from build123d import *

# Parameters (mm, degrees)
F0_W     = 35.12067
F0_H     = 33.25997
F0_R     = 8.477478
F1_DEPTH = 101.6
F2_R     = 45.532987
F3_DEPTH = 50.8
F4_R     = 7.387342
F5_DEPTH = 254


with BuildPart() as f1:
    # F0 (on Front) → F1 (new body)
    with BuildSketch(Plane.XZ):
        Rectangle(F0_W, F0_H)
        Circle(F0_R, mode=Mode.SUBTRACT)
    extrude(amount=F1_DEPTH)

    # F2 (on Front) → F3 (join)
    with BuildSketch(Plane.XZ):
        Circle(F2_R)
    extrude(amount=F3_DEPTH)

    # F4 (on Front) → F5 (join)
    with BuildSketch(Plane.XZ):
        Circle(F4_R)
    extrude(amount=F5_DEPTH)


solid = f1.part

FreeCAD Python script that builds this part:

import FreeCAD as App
import Part
import Sketcher

V = App.Vector
Q = App.Units.Quantity

doc = App.newDocument("Part")
body = doc.addObject("PartDesign::Body", "Body")

# Sketch on XZ plane
sketch1 = body.newObject("Sketcher::SketchObject", "Sketch")
sketch1.AttachmentSupport = (doc.getObject("XZ_Plane"), [""])
sketch1.MapMode = "FlatFace"
sketch1.addGeometry(Part.LineSegment(V(-18, 17, 0), V(-18, -17, 0)), False)
sketch1.addGeometry(Part.LineSegment(V(-18, -17, 0), V(18, -17, 0)), False)
sketch1.addGeometry(Part.LineSegment(V(18, -17, 0), V(18, 17, 0)), False)
sketch1.addGeometry(Part.LineSegment(V(18, 17, 0), V(-18, 17, 0)), False)
sketch1.addGeometry(Part.Circle(V(0, 0, 0), V(0, 0, 1), 8), False)
sketch1.addConstraint(Sketcher.Constraint("Coincident", 0, 2, 1, 1))
sketch1.addConstraint(Sketcher.Constraint("Coincident", 1, 2, 2, 1))
sketch1.addConstraint(Sketcher.Constraint("Coincident", 2, 2, 3, 1))
sketch1.addConstraint(Sketcher.Constraint("Coincident", 3, 2, 0, 1))
sketch1.addConstraint(Sketcher.Constraint("Vertical", 0))
sketch1.addConstraint(Sketcher.Constraint("Horizontal", 1))
sketch1.addConstraint(Sketcher.Constraint("Vertical", 2))
sketch1.addConstraint(Sketcher.Constraint("Horizontal", 3))
sketch1.addConstraint(Sketcher.Constraint("Coincident", 4, 3, -1, 1))
sketch1.addConstraint(Sketcher.Constraint("Symmetric", 0, 2, 2, 2, -1, 1))
sketch1.addConstraint(Sketcher.Constraint("Diameter", 4, 16.954956))
sketch1.addConstraint(Sketcher.Constraint("DistanceX", 1, 1, 1, 2, 35.12067))
sketch1.addConstraint(Sketcher.Constraint("DistanceY", 0, 2, 0, 1, 33.25997))
pad1 = body.newObject("PartDesign::Pad", "Pad")
pad1.Profile = sketch1
pad1.Length = Q("4 in")

# Sketch on XZ plane
sketch2 = body.newObject("Sketcher::SketchObject", "Sketch001")
sketch2.AttachmentSupport = (doc.getObject("XZ_Plane"), [""])
sketch2.MapMode = "FlatFace"
sketch2.addGeometry(Part.Circle(V(0, 0, 0), V(0, 0, 1), 46), False)
sketch2.addConstraint(Sketcher.Constraint("Coincident", 0, 3, -1, 1))
sketch2.addConstraint(Sketcher.Constraint("Diameter", 0, 91.065974))
pad2 = body.newObject("PartDesign::Pad", "Pad001")
pad2.Profile = sketch2
pad2.Length = Q("2 in")

# Sketch on XZ plane
sketch3 = body.newObject("Sketcher::SketchObject", "Sketch002")
sketch3.AttachmentSupport = (doc.getObject("XZ_Plane"), [""])
sketch3.MapMode = "FlatFace"
sketch3.addGeometry(Part.Circle(V(0, 0, 0), V(0, 0, 1), 7), False)
sketch3.addConstraint(Sketcher.Constraint("Coincident", 0, 3, -1, 1))
sketch3.addConstraint(Sketcher.Constraint("Diameter", 0, 14.774684))
pad3 = body.newObject("PartDesign::Pad", "Pad002")
pad3.Profile = sketch3
pad3.Length = Q("10 in")

doc.recompute()
